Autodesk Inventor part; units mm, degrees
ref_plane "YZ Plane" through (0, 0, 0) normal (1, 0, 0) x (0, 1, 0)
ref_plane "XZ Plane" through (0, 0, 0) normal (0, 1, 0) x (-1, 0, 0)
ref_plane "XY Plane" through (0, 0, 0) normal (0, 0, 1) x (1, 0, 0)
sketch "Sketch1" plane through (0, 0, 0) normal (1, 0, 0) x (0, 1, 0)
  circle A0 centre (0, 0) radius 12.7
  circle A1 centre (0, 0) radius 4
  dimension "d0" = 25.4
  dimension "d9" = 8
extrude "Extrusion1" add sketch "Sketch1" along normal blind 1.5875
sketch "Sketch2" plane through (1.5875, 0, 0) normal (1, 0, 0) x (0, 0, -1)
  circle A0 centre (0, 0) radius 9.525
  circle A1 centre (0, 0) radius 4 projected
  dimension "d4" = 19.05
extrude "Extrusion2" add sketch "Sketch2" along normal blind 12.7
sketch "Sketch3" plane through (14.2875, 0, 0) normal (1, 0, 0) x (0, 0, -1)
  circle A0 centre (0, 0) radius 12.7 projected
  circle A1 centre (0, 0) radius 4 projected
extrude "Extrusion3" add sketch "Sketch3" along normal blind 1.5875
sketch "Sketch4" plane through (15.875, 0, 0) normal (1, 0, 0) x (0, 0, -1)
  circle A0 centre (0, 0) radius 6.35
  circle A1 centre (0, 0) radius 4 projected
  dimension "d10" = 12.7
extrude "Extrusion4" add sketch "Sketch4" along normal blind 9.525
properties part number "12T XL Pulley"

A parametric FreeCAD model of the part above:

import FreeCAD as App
import Part
import Sketcher

V = App.Vector
Q = App.Units.Quantity

doc = App.newDocument("Part")
params = doc.addObject("Spreadsheet::Sheet", "Params")
for row, (alias, value) in enumerate([
    ("sketch1_diameter", "1 in"),
    ("pad1_length", "0.0625 in"),
    ("sketch2_diameter", "0.75 in"),
    ("pad2_length", "0.5 in"),
    ("sketch3_diameter", "1 in"),
    ("pad3_length", "0.0625 in"),
    ("sketch4_diameter", "0.5 in"),
    ("pad4_length", "0.375 in"),
], start=1):
    params.set(f"A{row}", alias)
    params.set(f"B{row}", "=" + value)
    params.setAlias(f"B{row}", alias)

body = doc.addObject("PartDesign::Body", "Body")

# Sketch on YZ plane
sketch1 = body.newObject("Sketcher::SketchObject", "Sketch")
sketch1.AttachmentSupport = (doc.getObject("YZ_Plane"), [""])
sketch1.MapMode = "FlatFace"
sketch1.addGeometry([
    Part.Circle(V(0, 0, 0), V(0, 0, 1), 12.7),
    Part.Circle(V(0, 0, 0), V(0, 0, 1), 4),
], False)
sketch1.addConstraint([
    Sketcher.Constraint("Coincident", 0, 3, -1, 1),
    Sketcher.Constraint("Coincident", 1, 3, -1, 1),
    Sketcher.Constraint("Diameter", 0, Q("1 in")),
    Sketcher.Constraint("Diameter", 1, Q("8 mm")),
])
sketch1.setExpression("Constraints[2]", "Params.sketch1_diameter")
pad1 = body.newObject("PartDesign::Pad", "Pad")
pad1.Profile = sketch1
pad1.setExpression("Length", "Params.pad1_length")

# Sketch on YZ plane
sketch2 = body.newObject("Sketcher::SketchObject", "Sketch001")
sketch2.AttachmentSupport = (doc.getObject("YZ_Plane"), [""])
sketch2.MapMode = "FlatFace"
sketch2.AttachmentOffset = App.Placement(V(0, 0, 0.0625 * 25.4), App.Rotation())
sketch2.addGeometry([
    Part.Circle(V(0, 0, 0), V(0, 0, 1), 9.5),
    Part.Circle(V(0, 0, 0), V(0, 0, 1), 4),
], False)
sketch2.addConstraint([
    Sketcher.Constraint("Coincident", 0, 3, -1, 1),
    Sketcher.Constraint("Coincident", 1, 3, -1, 1),
    Sketcher.Constraint("Diameter", 0, Q("0.75 in")),
    Sketcher.Constraint("Diameter", 1, Q("8 mm")),
])
sketch2.setExpression("Constraints[2]", "Params.sketch2_diameter")
pad2 = body.newObject("PartDesign::Pad", "Pad001")
pad2.Profile = sketch2
pad2.setExpression("Length", "Params.pad2_length")

# Sketch on YZ plane
sketch3 = body.newObject("Sketcher::SketchObject", "Sketch002")
sketch3.AttachmentSupport = (doc.getObject("YZ_Plane"), [""])
sketch3.MapMode = "FlatFace"
sketch3.AttachmentOffset = App.Placement(V(0, 0, 0.5625 * 25.4), App.Rotation())
sketch3.addGeometry([
    Part.Circle(V(0, 0, 0), V(0, 0, 1), 12.7),
    Part.Circle(V(0, 0, 0), V(0, 0, 1), 4),
], False)
sketch3.addConstraint([
    Sketcher.Constraint("Coincident", 0, 3, -1, 1),
    Sketcher.Constraint("Coincident", 1, 3, -1, 1),
    Sketcher.Constraint("Diameter", 0, Q("1 in")),
    Sketcher.Constraint("Diameter", 1, Q("8 mm")),
])
sketch3.setExpression("Constraints[2]", "Params.sketch3_diameter")
pad3 = body.newObject("PartDesign::Pad", "Pad002")
pad3.Profile = sketch3
pad3.setExpression("Length", "Params.pad3_length")

# Sketch on YZ plane
sketch4 = body.newObject("Sketcher::SketchObject", "Sketch003")
sketch4.AttachmentSupport = (doc.getObject("YZ_Plane"), [""])
sketch4.MapMode = "FlatFace"
sketch4.AttachmentOffset = App.Placement(V(0, 0, 0.625 * 25.4), App.Rotation())
sketch4.addGeometry([
    Part.Circle(V(0, 0, 0), V(0, 0, 1), 6.3),
    Part.Circle(V(0, 0, 0), V(0, 0, 1), 4),
], False)
sketch4.addConstraint([
    Sketcher.Constraint("Coincident", 0, 3, -1, 1),
    Sketcher.Constraint("Coincident", 1, 3, -1, 1),
    Sketcher.Constraint("Diameter", 0, Q("0.5 in")),
    Sketcher.Constraint("Diameter", 1, Q("8 mm")),
])
sketch4.setExpression("Constraints[2]", "Params.sketch4_diameter")
pad4 = body.newObject("PartDesign::Pad", "Pad003")
pad4.Profile = sketch4
pad4.setExpression("Length", "Params.pad4_length")

doc.recompute()
